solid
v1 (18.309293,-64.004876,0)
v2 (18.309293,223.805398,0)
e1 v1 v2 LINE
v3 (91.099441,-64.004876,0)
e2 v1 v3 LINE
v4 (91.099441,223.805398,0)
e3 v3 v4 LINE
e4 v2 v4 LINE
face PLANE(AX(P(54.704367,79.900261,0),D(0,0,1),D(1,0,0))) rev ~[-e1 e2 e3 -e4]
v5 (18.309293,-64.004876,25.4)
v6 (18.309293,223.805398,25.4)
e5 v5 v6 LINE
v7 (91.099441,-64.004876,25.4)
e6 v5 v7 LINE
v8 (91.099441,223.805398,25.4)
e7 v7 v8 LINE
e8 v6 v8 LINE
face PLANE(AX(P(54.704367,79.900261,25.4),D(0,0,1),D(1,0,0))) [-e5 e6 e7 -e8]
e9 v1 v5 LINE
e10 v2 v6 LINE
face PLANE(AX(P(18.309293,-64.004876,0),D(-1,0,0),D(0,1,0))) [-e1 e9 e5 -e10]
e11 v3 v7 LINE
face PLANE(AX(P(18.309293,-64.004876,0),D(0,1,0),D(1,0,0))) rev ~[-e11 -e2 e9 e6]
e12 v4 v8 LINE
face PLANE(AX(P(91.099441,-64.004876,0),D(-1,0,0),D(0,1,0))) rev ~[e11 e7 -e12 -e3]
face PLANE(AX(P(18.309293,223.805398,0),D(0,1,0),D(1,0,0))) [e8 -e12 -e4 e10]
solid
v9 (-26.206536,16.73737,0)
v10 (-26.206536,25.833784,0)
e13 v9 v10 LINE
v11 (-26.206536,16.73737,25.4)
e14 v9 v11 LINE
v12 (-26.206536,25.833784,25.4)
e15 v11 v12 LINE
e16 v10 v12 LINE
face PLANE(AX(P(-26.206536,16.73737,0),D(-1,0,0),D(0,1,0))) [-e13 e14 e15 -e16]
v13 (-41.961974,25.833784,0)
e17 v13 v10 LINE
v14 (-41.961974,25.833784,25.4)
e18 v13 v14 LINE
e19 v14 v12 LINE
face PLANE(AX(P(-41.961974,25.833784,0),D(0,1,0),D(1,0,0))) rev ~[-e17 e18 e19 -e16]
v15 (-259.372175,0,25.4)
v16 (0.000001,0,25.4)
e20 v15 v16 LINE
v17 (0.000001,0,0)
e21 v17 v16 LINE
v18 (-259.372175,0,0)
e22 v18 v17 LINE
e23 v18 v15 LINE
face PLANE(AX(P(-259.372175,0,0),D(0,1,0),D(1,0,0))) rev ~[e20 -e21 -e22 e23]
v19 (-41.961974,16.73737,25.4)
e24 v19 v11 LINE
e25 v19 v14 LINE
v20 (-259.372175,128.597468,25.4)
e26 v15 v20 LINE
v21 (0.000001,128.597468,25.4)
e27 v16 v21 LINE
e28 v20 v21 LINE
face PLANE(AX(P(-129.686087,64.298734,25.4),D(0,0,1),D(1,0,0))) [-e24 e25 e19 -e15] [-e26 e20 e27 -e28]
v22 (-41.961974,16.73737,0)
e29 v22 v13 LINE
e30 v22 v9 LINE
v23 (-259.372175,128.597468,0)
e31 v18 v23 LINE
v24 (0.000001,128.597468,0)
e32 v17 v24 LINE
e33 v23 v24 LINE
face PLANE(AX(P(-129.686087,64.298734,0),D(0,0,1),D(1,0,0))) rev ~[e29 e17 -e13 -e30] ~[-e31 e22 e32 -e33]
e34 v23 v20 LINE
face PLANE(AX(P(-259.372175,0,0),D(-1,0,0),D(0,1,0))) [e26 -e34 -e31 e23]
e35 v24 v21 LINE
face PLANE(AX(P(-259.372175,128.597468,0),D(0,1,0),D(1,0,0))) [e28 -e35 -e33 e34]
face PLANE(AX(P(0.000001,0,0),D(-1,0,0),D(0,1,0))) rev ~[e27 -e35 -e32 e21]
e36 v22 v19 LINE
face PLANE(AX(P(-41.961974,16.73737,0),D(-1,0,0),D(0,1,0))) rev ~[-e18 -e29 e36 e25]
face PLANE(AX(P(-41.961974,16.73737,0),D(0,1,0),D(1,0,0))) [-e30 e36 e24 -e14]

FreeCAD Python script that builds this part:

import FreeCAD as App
import Part
import Sketcher
from FreeCAD import Vector
Q = App.Units.Quantity

doc = App.newDocument("Part")
body = doc.addObject("PartDesign::Body", "Body")
body.AllowCompound = True

# Sketch on XY plane
sketch1 = body.newObject("Sketcher::SketchObject", "Sketch")
sketch1.AttachmentSupport = (doc.getObject("XY_Plane"), [""])
sketch1.MapMode = "FlatFace"
sketch1.addGeometry([
    Part.LineSegment(Vector(-259, 129, 0), Vector(-259, 0, 0)),  # 0
    Part.LineSegment(Vector(-259, 0, 0), Vector(0, 0, 0)),  # 1
    Part.LineSegment(Vector(0, 0, 0), Vector(0, 129, 0)),  # 2
    Part.LineSegment(Vector(0, 129, 0), Vector(-259, 129, 0)),  # 3
    Part.LineSegment(Vector(-26, 17, 0), Vector(-42, 17, 0)),  # 4
    Part.LineSegment(Vector(-42, 17, 0), Vector(-42, 26, 0)),  # 5
    Part.LineSegment(Vector(-42, 26, 0), Vector(-26, 26, 0)),  # 6
    Part.LineSegment(Vector(-26, 26, 0), Vector(-26, 17, 0)),  # 7
    Part.LineSegment(Vector(18, 224, 0), Vector(18, -64, 0)),  # 8
    Part.LineSegment(Vector(18, -64, 0), Vector(91, -64, 0)),  # 9
    Part.LineSegment(Vector(91, -64, 0), Vector(91, 224, 0)),  # 10
    Part.LineSegment(Vector(91, 224, 0), Vector(18, 224, 0)),  # 11
], False)
sketch1.addConstraint([
    Sketcher.Constraint("Coincident", 0, 2, 1, 1),
    Sketcher.Constraint("Coincident", 1, 2, 2, 1),
    Sketcher.Constraint("Coincident", 2, 2, 3, 1),
    Sketcher.Constraint("Coincident", 3, 2, 0, 1),
    Sketcher.Constraint("Coincident", 4, 2, 5, 1),
    Sketcher.Constraint("Coincident", 5, 2, 6, 1),
    Sketcher.Constraint("Coincident", 6, 2, 7, 1),
    Sketcher.Constraint("Coincident", 7, 2, 4, 1),
    Sketcher.Constraint("Coincident", 8, 2, 9, 1),
    Sketcher.Constraint("Coincident", 9, 2, 10, 1),
    Sketcher.Constraint("Coincident", 10, 2, 11, 1),
    Sketcher.Constraint("Coincident", 11, 2, 8, 1),
    Sketcher.Constraint("Vertical", 0),
    Sketcher.Constraint("Horizontal", 1),
    Sketcher.Constraint("Vertical", 2),
    Sketcher.Constraint("Horizontal", 3),
    Sketcher.Constraint("Horizontal", 4),
    Sketcher.Constraint("Vertical", 5),
    Sketcher.Constraint("Horizontal", 6),
    Sketcher.Constraint("Vertical", 7),
    Sketcher.Constraint("Vertical", 8),
    Sketcher.Constraint("Horizontal", 9),
    Sketcher.Constraint("Vertical", 10),
    Sketcher.Constraint("Horizontal", 11),
    Sketcher.Constraint("Coincident", 1, 2, -1, 1),
    Sketcher.Constraint("DistanceX", 4, 2, 4, 1, Q("15.755439 mm")),
    Sketcher.Constraint("DistanceX", 9, 1, 9, 2, Q("72.790148 mm")),
    Sketcher.Constraint("DistanceY", 0, 2, 0, 1, Q("128.597468 mm")),
    Sketcher.Constraint("DistanceY", -1, 1, 10, 2, Q("223.805398 mm")),
    Sketcher.Constraint("DistanceX", 0, 2, 4, 2, Q("217.4102 mm")),
    Sketcher.Constraint("DistanceX", 1, 1, 1, 2, Q("259.372175 mm")),
    Sketcher.Constraint("DistanceY", 5, 1, 5, 2, Q("9.096414 mm")),
    Sketcher.Constraint("DistanceY", 8, 2, 8, 1, Q("287.810274 mm")),
    Sketcher.Constraint("DistanceY", -1, 1, 4, 2, Q("16.73737 mm")),
    Sketcher.Constraint("DistanceX", -1, 1, 9, 2, Q("91.099441 mm")),
])
pad1 = body.newObject("PartDesign::Pad", "Pad")
pad1.Profile = sketch1
pad1.Length = Q("1 in")

doc.recompute()
